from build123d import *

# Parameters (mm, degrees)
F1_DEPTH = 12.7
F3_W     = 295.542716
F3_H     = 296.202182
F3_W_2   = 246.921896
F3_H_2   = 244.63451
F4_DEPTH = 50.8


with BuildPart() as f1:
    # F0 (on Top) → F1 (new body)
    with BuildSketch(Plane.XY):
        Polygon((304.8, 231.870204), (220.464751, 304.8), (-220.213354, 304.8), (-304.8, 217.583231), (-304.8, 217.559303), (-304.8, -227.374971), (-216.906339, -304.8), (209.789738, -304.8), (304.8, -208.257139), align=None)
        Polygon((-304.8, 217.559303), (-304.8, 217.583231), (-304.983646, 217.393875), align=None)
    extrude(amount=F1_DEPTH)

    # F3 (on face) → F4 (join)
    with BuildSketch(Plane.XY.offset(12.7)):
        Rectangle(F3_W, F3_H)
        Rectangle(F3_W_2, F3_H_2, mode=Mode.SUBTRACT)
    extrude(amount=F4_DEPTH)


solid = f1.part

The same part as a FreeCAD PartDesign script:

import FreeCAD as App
import Part
import Sketcher
from FreeCAD import Vector
Q = App.Units.Quantity


def add_polygon(sketch, points):
    """Adds a closed chain of lines whose ends are joined by coincident constraints."""
    first, n = sketch.GeometryCount, len(points)
    for a, b in zip(points, points[1:] + points[:1]):
        sketch.addGeometry(Part.LineSegment(App.Vector(*a, 0), App.Vector(*b, 0)), False)
    for i in range(n):
        sketch.addConstraint(Sketcher.Constraint("Coincident", first + i, 2, first + (i + 1) % n, 1))

doc = App.newDocument("Part")
body = doc.addObject("PartDesign::Body", "Body")

sketch1 = doc.addObject("Sketcher::SketchObject", "Sketch")
body.addObject(sketch1)
sketch1.AttachmentSupport = (doc.XY_Plane, [""])
sketch1.MapMode = "FlatFace"
add_polygon(sketch1, [(304.8, 231.87), (220.46, 304.8), (-220.21, 304.8), (-304.8, 217.58), (-304.98, 217.39), (-304.8, 217.56), (-304.8, -227.37), (-216.91, -304.8), (209.79, -304.8), (304.8, -208.26)])
sketch1.addConstraint([
    Sketcher.Constraint("Horizontal", 1),
    Sketcher.Constraint("Vertical", 5),
    Sketcher.Constraint("Horizontal", 7),
    Sketcher.Constraint("Vertical", 9),
    Sketcher.Constraint("Parallel", 2, 3),
    Sketcher.Constraint("Vertical", 2, 2, 4, 2),
    Sketcher.Constraint("DistanceY", -1, 1, 0, 2, Q("12 in")),
    Sketcher.Constraint("DistanceX", 2, 2, -1, 1, Q("12 in")),
    Sketcher.Constraint("DistanceY", 6, 2, -1, 1, Q("12 in")),
    Sketcher.Constraint("DistanceX", -1, 1, 8, 2, Q("12 in")),
    Sketcher.Constraint("DistanceY", 8, 2, -1, 1, Q("8.1991 in")),
    Sketcher.Constraint("Distance", 4, Q("0.247169 mm")),
    Sketcher.Constraint("Distance", 6, Q("117.132108 mm")),
    Sketcher.Constraint("DistanceX", 1, 2, 1, 1, Q("440.678105 mm")),
    Sketcher.Constraint("DistanceX", 7, 1, 7, 2, Q("426.696077 mm")),
    Sketcher.Constraint("DistanceY", 5, 2, 5, 1, Q("444.934274 mm")),
    Sketcher.Constraint("DistanceY", 9, 1, 9, 2, Q("440.127343 mm")),
    Sketcher.Constraint("DistanceX", -1, 1, 0, 2, Q("220.464751 mm")),
    Sketcher.Constraint("DistanceY", -1, 1, 2, 2, Q("217.583231 mm")),
    Sketcher.Constraint("DistanceY", 5, 2, -1, 1, Q("227.374971 mm")),
])
pad1 = doc.addObject("PartDesign::Pad", "Pad")
body.addObject(pad1)
pad1.Profile = sketch1
pad1.Length = Q("0.5 in")

sketch2 = doc.addObject("Sketcher::SketchObject", "Sketch001")
body.addObject(sketch2)
sketch2.AttachmentSupport = (doc.XY_Plane, [""])
sketch2.MapMode = "FlatFace"
sketch2.AttachmentOffset = App.Placement(Vector(0, 0, 0.5 * 25.4), App.Rotation())
add_polygon(sketch2, [(-148, 148), (-148, -148), (148, -148), (148, 148)])
add_polygon(sketch2, [(123, -122), (-123, -122), (-123, 122), (123, 122)])
sketch2.addConstraint([
    Sketcher.Constraint("Vertical", 0),
    Sketcher.Constraint("Horizontal", 1),
    Sketcher.Constraint("Vertical", 2),
    Sketcher.Constraint("Horizontal", 3),
    Sketcher.Constraint("Horizontal", 4),
    Sketcher.Constraint("Vertical", 5),
    Sketcher.Constraint("Horizontal", 6),
    Sketcher.Constraint("Vertical", 7),
    Sketcher.Constraint("Symmetric", 0, 2, 2, 2, -1, 1),
    Sketcher.Constraint("Symmetric", 4, 2, 6, 2, -1, 1),
    Sketcher.Constraint("DistanceY", 0, 2, 0, 1, Q("296.202182 mm")),
    Sketcher.Constraint("DistanceY", 5, 1, 5, 2, Q("244.63451 mm")),
    Sketcher.Constraint("DistanceX", 1, 1, 1, 2, Q("295.542716 mm")),
    Sketcher.Constraint("DistanceX", 4, 2, 4, 1, Q("246.921896 mm")),
])
pad2 = doc.addObject("PartDesign::Pad", "Pad001")
body.addObject(pad2)
pad2.Profile = sketch2
pad2.Length = Q("2 in")

doc.recompute()
